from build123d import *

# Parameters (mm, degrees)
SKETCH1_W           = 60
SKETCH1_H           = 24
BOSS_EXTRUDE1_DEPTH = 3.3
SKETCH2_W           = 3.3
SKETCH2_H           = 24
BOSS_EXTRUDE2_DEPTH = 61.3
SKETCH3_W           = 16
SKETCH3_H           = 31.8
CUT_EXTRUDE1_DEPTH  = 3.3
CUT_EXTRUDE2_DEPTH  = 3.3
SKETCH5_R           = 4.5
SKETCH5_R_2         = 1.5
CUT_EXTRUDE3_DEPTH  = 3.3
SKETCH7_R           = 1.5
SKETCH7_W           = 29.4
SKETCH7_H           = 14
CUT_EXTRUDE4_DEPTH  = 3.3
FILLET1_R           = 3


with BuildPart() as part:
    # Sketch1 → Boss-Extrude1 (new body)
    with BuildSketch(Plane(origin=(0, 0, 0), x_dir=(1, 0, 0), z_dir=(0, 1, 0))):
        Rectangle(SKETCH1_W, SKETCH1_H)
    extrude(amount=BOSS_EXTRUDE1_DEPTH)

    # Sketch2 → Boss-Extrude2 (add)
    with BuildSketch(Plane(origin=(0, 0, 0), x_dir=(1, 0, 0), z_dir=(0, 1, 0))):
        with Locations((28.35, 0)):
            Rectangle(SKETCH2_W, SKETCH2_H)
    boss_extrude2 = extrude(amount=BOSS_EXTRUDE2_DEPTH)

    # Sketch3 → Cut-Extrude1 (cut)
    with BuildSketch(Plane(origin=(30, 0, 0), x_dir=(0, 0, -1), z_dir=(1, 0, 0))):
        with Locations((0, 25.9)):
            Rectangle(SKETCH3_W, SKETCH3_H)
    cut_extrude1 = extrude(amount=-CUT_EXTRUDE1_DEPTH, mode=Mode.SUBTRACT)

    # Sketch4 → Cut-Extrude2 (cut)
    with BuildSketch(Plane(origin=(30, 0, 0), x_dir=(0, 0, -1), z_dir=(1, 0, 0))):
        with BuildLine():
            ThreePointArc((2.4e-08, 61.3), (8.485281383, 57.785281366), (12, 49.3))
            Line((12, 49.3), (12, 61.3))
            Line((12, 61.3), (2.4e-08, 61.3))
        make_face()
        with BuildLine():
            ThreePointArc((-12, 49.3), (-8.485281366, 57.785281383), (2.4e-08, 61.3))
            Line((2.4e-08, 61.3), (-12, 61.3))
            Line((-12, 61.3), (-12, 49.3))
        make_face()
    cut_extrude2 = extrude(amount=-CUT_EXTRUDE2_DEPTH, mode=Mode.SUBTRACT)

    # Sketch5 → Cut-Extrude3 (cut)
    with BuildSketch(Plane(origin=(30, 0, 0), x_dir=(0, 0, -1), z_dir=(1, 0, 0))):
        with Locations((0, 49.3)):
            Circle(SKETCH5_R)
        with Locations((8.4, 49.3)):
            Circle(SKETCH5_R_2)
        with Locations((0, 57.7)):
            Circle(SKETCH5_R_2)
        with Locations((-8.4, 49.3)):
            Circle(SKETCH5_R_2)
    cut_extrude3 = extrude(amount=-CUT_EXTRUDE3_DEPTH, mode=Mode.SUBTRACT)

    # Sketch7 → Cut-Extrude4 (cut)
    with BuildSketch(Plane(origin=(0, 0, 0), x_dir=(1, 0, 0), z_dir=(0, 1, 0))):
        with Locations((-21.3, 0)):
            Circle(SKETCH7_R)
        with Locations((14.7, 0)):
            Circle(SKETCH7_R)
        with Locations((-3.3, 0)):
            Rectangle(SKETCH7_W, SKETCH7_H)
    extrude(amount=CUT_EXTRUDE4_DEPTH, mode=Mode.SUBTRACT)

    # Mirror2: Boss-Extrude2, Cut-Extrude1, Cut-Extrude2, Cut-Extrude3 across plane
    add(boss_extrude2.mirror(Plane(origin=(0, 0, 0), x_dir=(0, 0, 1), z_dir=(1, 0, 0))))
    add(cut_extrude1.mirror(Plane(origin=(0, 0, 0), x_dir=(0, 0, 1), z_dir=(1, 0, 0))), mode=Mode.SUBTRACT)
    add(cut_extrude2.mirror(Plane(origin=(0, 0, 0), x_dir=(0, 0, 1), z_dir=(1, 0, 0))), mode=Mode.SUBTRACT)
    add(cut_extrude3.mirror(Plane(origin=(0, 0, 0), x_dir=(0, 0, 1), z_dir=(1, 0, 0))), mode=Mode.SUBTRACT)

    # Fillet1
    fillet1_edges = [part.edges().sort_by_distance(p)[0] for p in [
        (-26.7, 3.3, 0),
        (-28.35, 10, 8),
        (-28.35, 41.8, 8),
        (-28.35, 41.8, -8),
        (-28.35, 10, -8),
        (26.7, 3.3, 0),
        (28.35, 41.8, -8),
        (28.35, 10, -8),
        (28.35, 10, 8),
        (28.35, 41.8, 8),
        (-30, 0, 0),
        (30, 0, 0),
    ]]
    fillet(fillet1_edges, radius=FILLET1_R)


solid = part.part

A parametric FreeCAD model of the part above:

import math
import FreeCAD as App
import Part
import Sketcher

V = App.Vector


def edges_at(feature, points):
    """Names of the edges that pass closest to the given points."""
    edges = feature.Shape.Edges
    near = lambda p: min(range(len(edges)), key=lambda i: edges[i].distToShape(Part.Vertex(*p))[0])
    return sorted({f"Edge{near(p) + 1}" for p in points})

doc = App.newDocument("Part")
params = doc.addObject("Spreadsheet::Sheet", "Params")
for row, (alias, value) in enumerate([
    ("sketch1_width", "60 mm"),
    ("sketch1_height", "24 mm"),
    ("pad1_length", "3.3 mm"),
    ("sketch2_height", "24 mm"),
    ("sketch2_width", "3.3 mm"),
    ("pad2_length", "61.3 mm"),
    ("sketch3_height", "16 mm"),
    ("sketch3_width", "31.8 mm"),
    ("pocket1_length", "3.3 mm"),
    ("sketch4_radius", "12 mm"),
    ("pocket2_length", "3.3 mm"),
    ("sketch5_diameter", "9 mm"),
    ("sketch5_diameter2", "3 mm"),
    ("pocket3_length", "3.3 mm"),
    ("sketch6_diameter", "3 mm"),
    ("sketch6_height", "14 mm"),
    ("sketch6_width", "29.4 mm"),
    ("pocket4_length", "3.3 mm"),
    ("fillet_radius", "3 mm"),
], start=1):
    params.set(f"A{row}", alias)
    params.set(f"B{row}", "=" + value)
    params.setAlias(f"B{row}", alias)

body = doc.addObject("PartDesign::Body", "Body")

# Sketch on XZ plane
sketch1 = doc.addObject("Sketcher::SketchObject", "Sketch")
body.addObject(sketch1)
sketch1.AttachmentSupport = (doc.XZ_Plane, [""])
sketch1.MapMode = "FlatFace"
sketch1.addGeometry([
    Part.LineSegment(V(-30, -12, 0), V(-30, 12, 0)),
    Part.LineSegment(V(-30, 12, 0), V(30, 12, 0)),
    Part.LineSegment(V(30, 12, 0), V(30, -12, 0)),
    Part.LineSegment(V(30, -12, 0), V(-30, -12, 0)),
], False)
sketch1.addConstraint([
    Sketcher.Constraint("Coincident", 0, 2, 1, 1),
    Sketcher.Constraint("Coincident", 1, 2, 2, 1),
    Sketcher.Constraint("Coincident", 2, 2, 3, 1),
    Sketcher.Constraint("Coincident", 3, 2, 0, 1),
    Sketcher.Constraint("Vertical", 0),
    Sketcher.Constraint("Horizontal", 1),
    Sketcher.Constraint("Vertical", 2),
    Sketcher.Constraint("Horizontal", 3),
    Sketcher.Constraint("Symmetric", 0, 2, 2, 2, -1, 1),
    Sketcher.Constraint("DistanceX", 1, 1, 1, 2, 60.0),
    Sketcher.Constraint("DistanceY", 0, 1, 0, 2, 24.0),
])
sketch1.setExpression("Constraints[9]", "Params.sketch1_width")
sketch1.setExpression("Constraints[10]", "Params.sketch1_height")
pad1 = doc.addObject("PartDesign::Pad", "Pad")
body.addObject(pad1)
pad1.Profile = sketch1
pad1.setExpression("Length", "Params.pad1_length")
pad1.Reversed = True

# Sketch on XZ plane
sketch2 = doc.addObject("Sketcher::SketchObject", "Sketch001")
body.addObject(sketch2)
sketch2.AttachmentSupport = (doc.XZ_Plane, [""])
sketch2.MapMode = "FlatFace"
sketch2.addGeometry([
    Part.LineSegment(V(26.7, -12, 0), V(26.7, 12, 0)),
    Part.LineSegment(V(26.7, 12, 0), V(30, 12, 0)),
    Part.LineSegment(V(30, 12, 0), V(30, -12, 0)),
    Part.LineSegment(V(30, -12, 0), V(26.7, -12, 0)),
], False)
sketch2.addConstraint([
    Sketcher.Constraint("Coincident", 0, 2, 1, 1),
    Sketcher.Constraint("Coincident", 1, 2, 2, 1),
    Sketcher.Constraint("Coincident", 2, 2, 3, 1),
    Sketcher.Constraint("Coincident", 3, 2, 0, 1),
    Sketcher.Constraint("Vertical", 0),
    Sketcher.Constraint("Horizontal", 1),
    Sketcher.Constraint("Vertical", 2),
    Sketcher.Constraint("Horizontal", 3),
    Sketcher.Constraint("DistanceY", 0, 1, 0, 2, 24.0),
    Sketcher.Constraint("DistanceX", 1, 1, 1, 2, 3.3),
    Sketcher.Constraint("DistanceY", -1, 1, 0, 2, 12.0),
    Sketcher.Constraint("DistanceX", -1, 1, 1, 2, 30.0),
])
sketch2.setExpression("Constraints[8]", "Params.sketch2_height")
sketch2.setExpression("Constraints[9]", "Params.sketch2_width")
pad2 = doc.addObject("PartDesign::Pad", "Pad001")
body.addObject(pad2)
pad2.Profile = sketch2
pad2.setExpression("Length", "Params.pad2_length")
pad2.Reversed = True

# Sketch on YZ plane
sketch3 = doc.addObject("Sketcher::SketchObject", "Sketch002")
body.addObject(sketch3)
sketch3.AttachmentSupport = (doc.YZ_Plane, [""])
sketch3.MapMode = "FlatFace"
sketch3.AttachmentOffset = App.Placement(V(0, 0, 30), App.Rotation())
sketch3.addGeometry([
    Part.LineSegment(V(42, 8, 0), V(10, 8, 0)),
    Part.LineSegment(V(10, 8, 0), V(10, -8, 0)),
    Part.LineSegment(V(10, -8, 0), V(42, -8, 0)),
    Part.LineSegment(V(42, -8, 0), V(42, 8, 0)),
], False)
sketch3.addConstraint([
    Sketcher.Constraint("Coincident", 0, 2, 1, 1),
    Sketcher.Constraint("Coincident", 1, 2, 2, 1),
    Sketcher.Constraint("Coincident", 2, 2, 3, 1),
    Sketcher.Constraint("Coincident", 3, 2, 0, 1),
    Sketcher.Constraint("Horizontal", 0),
    Sketcher.Constraint("Vertical", 1),
    Sketcher.Constraint("Horizontal", 2),
    Sketcher.Constraint("Vertical", 3),
    Sketcher.Constraint("DistanceY", 1, 2, 1, 1, 16.0),
    Sketcher.Constraint("DistanceX", 0, 2, 0, 1, 31.8),
    Sketcher.Constraint("DistanceX", -1, 1, 0, 2, 10.0),
    Sketcher.Constraint("DistanceY", -1, 1, 0, 2, 8.0),
])
sketch3.setExpression("Constraints[8]", "Params.sketch3_height")
sketch3.setExpression("Constraints[9]", "Params.sketch3_width")
pocket1 = doc.addObject("PartDesign::Pocket", "Pocket")
body.addObject(pocket1)
pocket1.Profile = sketch3
pocket1.setExpression("Length", "Params.pocket1_length")

# Sketch on YZ plane
sketch4 = doc.addObject("Sketcher::SketchObject", "Sketch003")
body.addObject(sketch4)
sketch4.AttachmentSupport = (doc.YZ_Plane, [""])
sketch4.MapMode = "FlatFace"
sketch4.AttachmentOffset = App.Placement(V(0, 0, 30), App.Rotation())
sketch4.addGeometry([
    Part.ArcOfCircle(Part.Circle(V(49, 0, 0), V(0, 0, 1), 12), math.radians(-90), math.radians(0)),  # 0
    Part.LineSegment(V(49, -12, 0), V(61, -12, 0)),  # 1
    Part.LineSegment(V(61, -12, 0), V(61, 0, 0)),  # 2
    Part.ArcOfCircle(Part.Circle(V(49, 0, 0), V(0, 0, 1), 12), math.radians(0), math.radians(90)),  # 3
    Part.LineSegment(V(61, 0, 0), V(61, 12, 0)),  # 4
    Part.LineSegment(V(61, 12, 0), V(49, 12, 0)),  # 5
], False)
sketch4.addConstraint([
    Sketcher.Constraint("Tangent", 0, 1, 1, 1),
    Sketcher.Constraint("Coincident", 1, 2, 2, 1),
    Sketcher.Constraint("Tangent", 2, 2, 0, 2),
    Sketcher.Constraint("Tangent", 3, 1, 4, 1),
    Sketcher.Constraint("Coincident", 4, 2, 5, 1),
    Sketcher.Constraint("Tangent", 5, 2, 3, 2),
    Sketcher.Constraint("Horizontal", 1),
    Sketcher.Constraint("Vertical", 2),
    Sketcher.Constraint("Vertical", 4),
    Sketcher.Constraint("Horizontal", 5),
    Sketcher.Constraint("Coincident", 3, 3, 0, 3),
    Sketcher.Constraint("Equal", 0, 3),
    Sketcher.Constraint("PointOnObject", 0, 3, -1),
    Sketcher.Constraint("Radius", 0, 12.0),
    Sketcher.Constraint("DistanceX", -1, 1, 0, 3, 49.3),
])
sketch4.setExpression("Constraints[13]", "Params.sketch4_radius")
pocket2 = doc.addObject("PartDesign::Pocket", "Pocket001")
body.addObject(pocket2)
pocket2.Profile = sketch4
pocket2.setExpression("Length", "Params.pocket2_length")

# Sketch on YZ plane
sketch5 = doc.addObject("Sketcher::SketchObject", "Sketch004")
body.addObject(sketch5)
sketch5.AttachmentSupport = (doc.YZ_Plane, [""])
sketch5.MapMode = "FlatFace"
sketch5.AttachmentOffset = App.Placement(V(0, 0, 30), App.Rotation())
sketch5.addGeometry([
    Part.Circle(V(49.3, 0, 0), V(0, 0, 1), 4.5),
    Part.Circle(V(49.3, -8.4, 0), V(0, 0, 1), 1.5),
    Part.Circle(V(57.7, 0, 0), V(0, 0, 1), 1.5),
    Part.Circle(V(49.3, 8.4, 0), V(0, 0, 1), 1.5),
], False)
sketch5.addConstraint([
    Sketcher.Constraint("Equal", 1, 2),
    Sketcher.Constraint("Equal", 2, 3),
    Sketcher.Constraint("Symmetric", 1, 3, 3, 3, -1),
    Sketcher.Constraint("PointOnObject", 0, 3, -1),
    Sketcher.Constraint("PointOnObject", 2, 3, -1),
    Sketcher.Constraint("Vertical", 0, 3, 1, 3),
    Sketcher.Constraint("Diameter", 0, 9.0),
    Sketcher.Constraint("Diameter", 1, 3.0),
    Sketcher.Constraint("DistanceX", -1, 1, 0, 3, 49.3),
    Sketcher.Constraint("DistanceY", 1, 3, -1, 1, 8.4),
    Sketcher.Constraint("DistanceX", -1, 1, 2, 3, 57.7),
])
sketch5.setExpression("Constraints[6]", "Params.sketch5_diameter")
sketch5.setExpression("Constraints[7]", "Params.sketch5_diameter2")
pocket3 = doc.addObject("PartDesign::Pocket", "Pocket002")
body.addObject(pocket3)
pocket3.Profile = sketch5
pocket3.setExpression("Length", "Params.pocket3_length")

# Sketch on XZ plane
sketch6 = doc.addObject("Sketcher::SketchObject", "Sketch005")
body.addObject(sketch6)
sketch6.AttachmentSupport = (doc.XZ_Plane, [""])
sketch6.MapMode = "FlatFace"
sketch6.addGeometry([
    Part.Circle(V(-21.3, 0, 0), V(0, 0, 1), 1.5),  # 0
    Part.Circle(V(14.7, 0, 0), V(0, 0, 1), 1.5),  # 1
    Part.LineSegment(V(-18, -7, 0), V(-18, 7, 0)),  # 2
    Part.LineSegment(V(-18, 7, 0), V(11.4, 7, 0)),  # 3
    Part.LineSegment(V(11.4, 7, 0), V(11.4, -7, 0)),  # 4
    Part.LineSegment(V(11.4, -7, 0), V(-18, -7, 0)),  # 5
], False)
sketch6.addConstraint([
    Sketcher.Constraint("Coincident", 2, 2, 3, 1),
    Sketcher.Constraint("Coincident", 3, 2, 4, 1),
    Sketcher.Constraint("Coincident", 4, 2, 5, 1),
    Sketcher.Constraint("Coincident", 5, 2, 2, 1),
    Sketcher.Constraint("Vertical", 2),
    Sketcher.Constraint("Horizontal", 3),
    Sketcher.Constraint("Vertical", 4),
    Sketcher.Constraint("Horizontal", 5),
    Sketcher.Constraint("Equal", 0, 1),
    Sketcher.Constraint("PointOnObject", 0, 3, -1),
    Sketcher.Constraint("PointOnObject", 1, 3, -1),
    Sketcher.Constraint("Diameter", 0, 3.0),
    Sketcher.Constraint("DistanceY", 2, 1, 2, 2, 14.0),
    Sketcher.Constraint("DistanceX", 3, 1, 3, 2, 29.4),
    Sketcher.Constraint("DistanceX", 2, 2, -1, 1, 18.0),
    Sketcher.Constraint("DistanceY", -1, 1, 2, 2, 7.0),
    Sketcher.Constraint("DistanceX", 0, 3, 1, 3, 36.0),
    Sketcher.Constraint("DistanceX", 0, 3, -1, 1, 21.3),
])
sketch6.setExpression("Constraints[11]", "Params.sketch6_diameter")
sketch6.setExpression("Constraints[12]", "Params.sketch6_height")
sketch6.setExpression("Constraints[13]", "Params.sketch6_width")
pocket4 = doc.addObject("PartDesign::Pocket", "Pocket003")
body.addObject(pocket4)
pocket4.Profile = sketch6
pocket4.setExpression("Length", "Params.pocket4_length")
doc.recompute()

mirrored = doc.addObject("PartDesign::Mirrored", "Mirrored")
body.addObject(mirrored)
mirrored.Originals = [pad2, pocket1, pocket2, pocket3]
mirrored.MirrorPlane = (doc.YZ_Plane, [""])
body.Tip = mirrored
doc.recompute()

fillet = doc.addObject("PartDesign::Fillet", "Fillet")
body.addObject(fillet)
fillet.Base = (mirrored, edges_at(mirrored, [
    (-26.7, 3.3, 0),
    (-28.35, 10, 8),
    (-28.35, 41.8, 8),
    (-28.35, 41.8, -8),
    (-28.35, 10, -8),
    (26.7, 3.3, 0),
    (28.35, 41.8, -8),
    (28.35, 10, -8),
    (28.35, 10, 8),
    (28.35, 41.8, 8),
    (-30, 0, 0),
    (30, 0, 0),
]))
fillet.setExpression("Radius", "Params.fillet_radius")

doc.recompute()
